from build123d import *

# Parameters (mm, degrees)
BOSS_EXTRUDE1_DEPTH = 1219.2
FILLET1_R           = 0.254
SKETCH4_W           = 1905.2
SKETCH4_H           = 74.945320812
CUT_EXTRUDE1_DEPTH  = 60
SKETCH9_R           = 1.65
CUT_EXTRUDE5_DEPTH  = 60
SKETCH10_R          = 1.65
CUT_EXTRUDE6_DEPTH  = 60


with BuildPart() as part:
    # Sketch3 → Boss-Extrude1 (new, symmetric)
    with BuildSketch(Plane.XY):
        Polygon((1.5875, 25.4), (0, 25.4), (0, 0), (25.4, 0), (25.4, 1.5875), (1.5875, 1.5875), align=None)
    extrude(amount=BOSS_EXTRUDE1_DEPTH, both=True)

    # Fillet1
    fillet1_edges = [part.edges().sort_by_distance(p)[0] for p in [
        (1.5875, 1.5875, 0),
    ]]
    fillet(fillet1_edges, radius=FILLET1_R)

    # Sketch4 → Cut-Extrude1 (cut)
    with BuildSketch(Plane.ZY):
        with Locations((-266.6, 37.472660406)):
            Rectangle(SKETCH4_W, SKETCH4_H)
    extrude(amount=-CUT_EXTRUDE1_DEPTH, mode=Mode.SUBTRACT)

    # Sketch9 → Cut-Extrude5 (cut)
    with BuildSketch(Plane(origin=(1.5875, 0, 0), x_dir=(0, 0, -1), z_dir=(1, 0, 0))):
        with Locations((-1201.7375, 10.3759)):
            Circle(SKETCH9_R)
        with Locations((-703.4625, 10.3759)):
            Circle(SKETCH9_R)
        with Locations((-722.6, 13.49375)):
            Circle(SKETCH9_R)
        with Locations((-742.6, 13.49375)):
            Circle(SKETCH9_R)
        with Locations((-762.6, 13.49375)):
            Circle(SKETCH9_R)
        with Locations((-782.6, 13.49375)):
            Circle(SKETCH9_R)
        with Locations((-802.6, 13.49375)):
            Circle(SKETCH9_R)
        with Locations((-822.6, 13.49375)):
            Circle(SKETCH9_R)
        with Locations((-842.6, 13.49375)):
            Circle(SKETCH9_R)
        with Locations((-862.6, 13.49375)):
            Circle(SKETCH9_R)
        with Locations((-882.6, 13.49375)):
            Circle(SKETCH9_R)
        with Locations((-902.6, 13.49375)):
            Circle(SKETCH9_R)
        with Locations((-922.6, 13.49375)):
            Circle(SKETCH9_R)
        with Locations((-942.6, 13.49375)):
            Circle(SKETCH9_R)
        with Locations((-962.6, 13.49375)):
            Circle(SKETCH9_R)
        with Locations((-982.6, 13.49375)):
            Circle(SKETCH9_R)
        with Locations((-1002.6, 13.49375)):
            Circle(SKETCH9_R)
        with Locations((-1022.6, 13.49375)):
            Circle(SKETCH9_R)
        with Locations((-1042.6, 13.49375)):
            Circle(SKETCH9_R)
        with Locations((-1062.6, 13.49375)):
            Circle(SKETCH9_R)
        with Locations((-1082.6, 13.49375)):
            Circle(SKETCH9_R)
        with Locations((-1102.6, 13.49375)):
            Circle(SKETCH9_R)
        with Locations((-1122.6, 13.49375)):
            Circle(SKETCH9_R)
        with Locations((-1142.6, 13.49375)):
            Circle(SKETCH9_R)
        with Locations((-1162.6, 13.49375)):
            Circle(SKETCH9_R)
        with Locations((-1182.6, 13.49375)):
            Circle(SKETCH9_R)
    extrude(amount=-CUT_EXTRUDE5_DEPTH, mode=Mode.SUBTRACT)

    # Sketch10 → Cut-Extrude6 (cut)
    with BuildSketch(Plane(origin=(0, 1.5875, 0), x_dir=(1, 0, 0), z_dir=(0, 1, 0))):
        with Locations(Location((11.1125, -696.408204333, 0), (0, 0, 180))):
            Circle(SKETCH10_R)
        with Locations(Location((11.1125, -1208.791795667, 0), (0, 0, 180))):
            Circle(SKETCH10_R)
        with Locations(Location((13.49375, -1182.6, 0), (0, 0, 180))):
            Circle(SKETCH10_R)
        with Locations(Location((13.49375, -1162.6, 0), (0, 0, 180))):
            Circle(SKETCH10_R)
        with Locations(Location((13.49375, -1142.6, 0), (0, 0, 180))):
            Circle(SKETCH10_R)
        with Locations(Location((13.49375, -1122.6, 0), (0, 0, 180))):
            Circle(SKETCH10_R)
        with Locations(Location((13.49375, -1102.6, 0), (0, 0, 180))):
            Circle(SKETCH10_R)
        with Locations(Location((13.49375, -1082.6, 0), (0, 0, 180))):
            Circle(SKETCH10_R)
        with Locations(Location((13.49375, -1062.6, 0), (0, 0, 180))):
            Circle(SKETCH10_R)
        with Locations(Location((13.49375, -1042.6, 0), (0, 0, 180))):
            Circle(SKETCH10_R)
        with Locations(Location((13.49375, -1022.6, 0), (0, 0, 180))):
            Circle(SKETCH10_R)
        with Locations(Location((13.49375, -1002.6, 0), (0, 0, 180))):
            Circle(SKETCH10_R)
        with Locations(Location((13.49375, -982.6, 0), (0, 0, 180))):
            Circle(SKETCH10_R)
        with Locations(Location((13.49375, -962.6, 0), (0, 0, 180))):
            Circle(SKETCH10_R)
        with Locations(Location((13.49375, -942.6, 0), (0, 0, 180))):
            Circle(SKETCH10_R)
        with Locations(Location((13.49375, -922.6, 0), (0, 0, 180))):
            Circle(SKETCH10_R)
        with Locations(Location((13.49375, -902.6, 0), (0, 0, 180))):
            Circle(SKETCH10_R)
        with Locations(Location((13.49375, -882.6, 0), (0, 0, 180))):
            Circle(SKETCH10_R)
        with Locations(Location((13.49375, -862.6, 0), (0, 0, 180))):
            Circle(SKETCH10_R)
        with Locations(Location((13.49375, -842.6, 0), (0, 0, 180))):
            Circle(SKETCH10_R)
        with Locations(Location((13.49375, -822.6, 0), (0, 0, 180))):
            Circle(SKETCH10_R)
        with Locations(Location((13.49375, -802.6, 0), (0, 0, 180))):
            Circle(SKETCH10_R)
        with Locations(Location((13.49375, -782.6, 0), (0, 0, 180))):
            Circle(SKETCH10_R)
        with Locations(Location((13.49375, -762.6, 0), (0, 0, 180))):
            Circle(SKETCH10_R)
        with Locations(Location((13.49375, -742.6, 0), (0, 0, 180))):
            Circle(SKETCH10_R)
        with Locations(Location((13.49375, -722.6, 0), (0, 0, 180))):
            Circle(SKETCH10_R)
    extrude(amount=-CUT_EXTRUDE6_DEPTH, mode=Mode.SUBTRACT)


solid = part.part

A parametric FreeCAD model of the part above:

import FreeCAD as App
import Part
import Sketcher
from FreeCAD import Vector
Q = App.Units.Quantity


def edges_at(feature, points):
    """Names of the edges that pass closest to the given points."""
    edges = feature.Shape.Edges
    near = lambda p: min(range(len(edges)), key=lambda i: edges[i].distToShape(Part.Vertex(*p))[0])
    return sorted({f"Edge{near(p) + 1}" for p in points})

doc = App.newDocument("Part")
body = doc.addObject("PartDesign::Body", "Body")

# Sketch on XY plane
sketch1 = doc.addObject("Sketcher::SketchObject", "Sketch")
body.addObject(sketch1)
sketch1.AttachmentSupport = (doc.XY_Plane, [""])
sketch1.MapMode = "FlatFace"
sketch1.addGeometry([
    Part.LineSegment(Vector(1.6, 25.4, 0), Vector(0, 25.4, 0)),  # 0
    Part.LineSegment(Vector(0, 25.4, 0), Vector(0, 0, 0)),  # 1
    Part.LineSegment(Vector(0, 0, 0), Vector(25.4, 0, 0)),  # 2
    Part.LineSegment(Vector(25.4, 0, 0), Vector(25.4, 1.6, 0)),  # 3
    Part.LineSegment(Vector(25.4, 1.6, 0), Vector(1.6, 1.6, 0)),  # 4
    Part.LineSegment(Vector(1.6, 1.6, 0), Vector(1.6, 25.4, 0)),  # 5
], False)
sketch1.addConstraint([
    Sketcher.Constraint("Coincident", 0, 2, 1, 1),
    Sketcher.Constraint("Coincident", 1, 2, 2, 1),
    Sketcher.Constraint("Coincident", 2, 2, 3, 1),
    Sketcher.Constraint("Coincident", 3, 2, 4, 1),
    Sketcher.Constraint("Coincident", 4, 2, 5, 1),
    Sketcher.Constraint("Coincident", 5, 2, 0, 1),
    Sketcher.Constraint("Horizontal", 0),
    Sketcher.Constraint("Vertical", 1),
    Sketcher.Constraint("Horizontal", 2),
    Sketcher.Constraint("Vertical", 3),
    Sketcher.Constraint("Horizontal", 4),
    Sketcher.Constraint("Vertical", 5),
    Sketcher.Constraint("Coincident", 1, 2, -1, 1),
    Sketcher.Constraint("Equal", 2, 1),
    Sketcher.Constraint("Equal", 0, 3),
    Sketcher.Constraint("DistanceX", 2, 1, 2, 2, Q("1 in")),
    Sketcher.Constraint("DistanceX", 0, 2, 0, 1, Q("0.0625 in")),
])
pad1 = doc.addObject("PartDesign::Pad", "Pad")
body.addObject(pad1)
pad1.Profile = sketch1
pad1.Length = Q("96 in")
pad1.Midplane = True
doc.recompute()

fillet = doc.addObject("PartDesign::Fillet", "Fillet")
body.addObject(fillet)
fillet.Base = (pad1, edges_at(pad1, [(1.587, 1.587, 0)]))
fillet.Radius = Q("0.01 in")

# Sketch on YZ plane
sketch2 = doc.addObject("Sketcher::SketchObject", "Sketch001")
body.addObject(sketch2)
sketch2.AttachmentSupport = (doc.YZ_Plane, [""])
sketch2.MapMode = "FlatFace"
sketch2.addGeometry([
    Part.LineSegment(Vector(75, -1219, 0), Vector(0, -1219, 0)),
    Part.LineSegment(Vector(0, -1219, 0), Vector(0, 686, 0)),
    Part.LineSegment(Vector(0, 686, 0), Vector(75, 686, 0)),
    Part.LineSegment(Vector(75, 686, 0), Vector(75, -1219, 0)),
], False)
sketch2.addConstraint([
    Sketcher.Constraint("Coincident", 0, 2, 1, 1),
    Sketcher.Constraint("Coincident", 1, 2, 2, 1),
    Sketcher.Constraint("Coincident", 2, 2, 3, 1),
    Sketcher.Constraint("Coincident", 3, 2, 0, 1),
    Sketcher.Constraint("Horizontal", 0),
    Sketcher.Constraint("Vertical", 1),
    Sketcher.Constraint("Horizontal", 2),
    Sketcher.Constraint("Vertical", 3),
    Sketcher.Constraint("PointOnObject", 0, 2, -2),
    Sketcher.Constraint("DistanceY", 0, 2, -1, 1, Q("48 in")),
    Sketcher.Constraint("DistanceY", 1, 1, 1, 2, Q("1905.2 mm")),
    Sketcher.Constraint("DistanceX", 0, 2, 0, 1, Q("74.945321 mm")),
])
pocket1 = doc.addObject("PartDesign::Pocket", "Pocket")
body.addObject(pocket1)
pocket1.Profile = sketch2
pocket1.Length = 60
pocket1.Reversed = True

# Sketch on YZ plane
sketch3 = doc.addObject("Sketcher::SketchObject", "Sketch002")
body.addObject(sketch3)
sketch3.AttachmentSupport = (doc.YZ_Plane, [""])
sketch3.MapMode = "FlatFace"
sketch3.AttachmentOffset = App.Placement(Vector(0, 0, 0.0625 * 25.4), App.Rotation())
sketch3.addGeometry([
    Part.Circle(Vector(10.4, 1201.7, 0), Vector(0, 0, 1), 1.6),  # 0
    Part.Circle(Vector(10.4, 703.5, 0), Vector(0, 0, 1), 1.6),  # 1
    Part.Circle(Vector(13.5, 722.6, 0), Vector(0, 0, 1), 1.6),  # 2
    Part.Circle(Vector(13.5, 742.6, 0), Vector(0, 0, 1), 1.6),  # 3
    Part.Circle(Vector(13.5, 762.6, 0), Vector(0, 0, 1), 1.6),  # 4
    Part.Circle(Vector(13.5, 782.6, 0), Vector(0, 0, 1), 1.6),  # 5
    Part.Circle(Vector(13.5, 802.6, 0), Vector(0, 0, 1), 1.6),  # 6
    Part.Circle(Vector(13.5, 822.6, 0), Vector(0, 0, 1), 1.6),  # 7
    Part.Circle(Vector(13.5, 842.6, 0), Vector(0, 0, 1), 1.6),  # 8
    Part.Circle(Vector(13.5, 862.6, 0), Vector(0, 0, 1), 1.6),  # 9
    Part.Circle(Vector(13.5, 882.6, 0), Vector(0, 0, 1), 1.6),  # 10
    Part.Circle(Vector(13.5, 902.6, 0), Vector(0, 0, 1), 1.6),  # 11
    Part.Circle(Vector(13.5, 922.6, 0), Vector(0, 0, 1), 1.6),  # 12
    Part.Circle(Vector(13.5, 942.6, 0), Vector(0, 0, 1), 1.6),  # 13
    Part.Circle(Vector(13.5, 962.6, 0), Vector(0, 0, 1), 1.6),  # 14
    Part.Circle(Vector(13.5, 982.6, 0), Vector(0, 0, 1), 1.6),  # 15
    Part.Circle(Vector(13.5, 1002.6, 0), Vector(0, 0, 1), 1.6),  # 16
    Part.Circle(Vector(13.5, 1022.6, 0), Vector(0, 0, 1), 1.6),  # 17
    Part.Circle(Vector(13.5, 1042.6, 0), Vector(0, 0, 1), 1.6),  # 18
    Part.Circle(Vector(13.5, 1062.6, 0), Vector(0, 0, 1), 1.6),  # 19
    Part.Circle(Vector(13.5, 1082.6, 0), Vector(0, 0, 1), 1.6),  # 20
    Part.Circle(Vector(13.5, 1102.6, 0), Vector(0, 0, 1), 1.6),  # 21
    Part.Circle(Vector(13.5, 1122.6, 0), Vector(0, 0, 1), 1.6),  # 22
    Part.Circle(Vector(13.5, 1142.6, 0), Vector(0, 0, 1), 1.6),  # 23
    Part.Circle(Vector(13.5, 1162.6, 0), Vector(0, 0, 1), 1.6),  # 24
    Part.Circle(Vector(13.5, 1182.6, 0), Vector(0, 0, 1), 1.6),  # 25
], False)
sketch3.addConstraint([
    Sketcher.Constraint("Equal", 0, 1),
    Sketcher.Constraint("Equal", 1, 2),
    Sketcher.Constraint("Equal", 2, 3),
    Sketcher.Constraint("Equal", 3, 4),
    Sketcher.Constraint("Equal", 4, 5),
    Sketcher.Constraint("Equal", 5, 6),
    Sketcher.Constraint("Equal", 6, 7),
    Sketcher.Constraint("Equal", 7, 8),
    Sketcher.Constraint("Equal", 8, 9),
    Sketcher.Constraint("Equal", 9, 10),
    Sketcher.Constraint("Equal", 10, 11),
    Sketcher.Constraint("Equal", 11, 12),
    Sketcher.Constraint("Equal", 12, 13),
    Sketcher.Constraint("Equal", 13, 14),
    Sketcher.Constraint("Equal", 14, 15),
    Sketcher.Constraint("Equal", 15, 16),
    Sketcher.Constraint("Equal", 16, 17),
    Sketcher.Constraint("Equal", 17, 18),
    Sketcher.Constraint("Equal", 18, 19),
    Sketcher.Constraint("Equal", 19, 20),
    Sketcher.Constraint("Equal", 20, 21),
    Sketcher.Constraint("Equal", 21, 22),
    Sketcher.Constraint("Equal", 22, 23),
    Sketcher.Constraint("Equal", 23, 24),
    Sketcher.Constraint("Equal", 24, 25),
    Sketcher.Constraint("Vertical", 0, 3, 1, 3),
    Sketcher.Constraint("Vertical", 2, 3, 3, 3),
    Sketcher.Constraint("Vertical", 3, 3, 4, 3),
    Sketcher.Constraint("Vertical", 4, 3, 5, 3),
    Sketcher.Constraint("Vertical", 5, 3, 6, 3),
    Sketcher.Constraint("Vertical", 6, 3, 7, 3),
    Sketcher.Constraint("Vertical", 7, 3, 8, 3),
    Sketcher.Constraint("Vertical", 8, 3, 9, 3),
    Sketcher.Constraint("Vertical", 9, 3, 10, 3),
    Sketcher.Constraint("Vertical", 10, 3, 11, 3),
    Sketcher.Constraint("Vertical", 11, 3, 12, 3),
    Sketcher.Constraint("Vertical", 12, 3, 13, 3),
    Sketcher.Constraint("Vertical", 13, 3, 14, 3),
    Sketcher.Constraint("Vertical", 14, 3, 15, 3),
    Sketcher.Constraint("Vertical", 15, 3, 16, 3),
    Sketcher.Constraint("Vertical", 16, 3, 17, 3),
    Sketcher.Constraint("Vertical", 17, 3, 18, 3),
    Sketcher.Constraint("Vertical", 18, 3, 19, 3),
    Sketcher.Constraint("Vertical", 19, 3, 20, 3),
    Sketcher.Constraint("Vertical", 20, 3, 21, 3),
    Sketcher.Constraint("Vertical", 21, 3, 22, 3),
    Sketcher.Constraint("Vertical", 22, 3, 23, 3),
    Sketcher.Constraint("Vertical", 23, 3, 24, 3),
    Sketcher.Constraint("Vertical", 24, 3, 25, 3),
    Sketcher.Constraint("Diameter", 0, Q("3.3 mm")),
    Sketcher.Constraint("DistanceY", -1, 1, 0, 3, Q("47.3125 in")),
    Sketcher.Constraint("DistanceX", -1, 1, 2, 3, Q("0.53125 in")),
    Sketcher.Constraint("DistanceX", -1, 1, 0, 3, Q("0.4085 in")),
    Sketcher.Constraint("DistanceY", -1, 1, 1, 3, Q("703.4625 mm")),
    Sketcher.Constraint("DistanceY", -1, 1, 2, 3, Q("722.6 mm")),
    Sketcher.Constraint("DistanceY", -1, 1, 3, 3, Q("742.6 mm")),
    Sketcher.Constraint("DistanceY", -1, 1, 4, 3, Q("762.6 mm")),
    Sketcher.Constraint("DistanceY", -1, 1, 5, 3, Q("782.6 mm")),
    Sketcher.Constraint("DistanceY", -1, 1, 6, 3, Q("802.6 mm")),
    Sketcher.Constraint("DistanceY", -1, 1, 7, 3, Q("822.6 mm")),
    Sketcher.Constraint("DistanceY", -1, 1, 8, 3, Q("842.6 mm")),
    Sketcher.Constraint("DistanceY", -1, 1, 9, 3, Q("862.6 mm")),
    Sketcher.Constraint("DistanceY", -1, 1, 10, 3, Q("882.6 mm")),
    Sketcher.Constraint("DistanceY", -1, 1, 11, 3, Q("902.6 mm")),
    Sketcher.Constraint("DistanceY", -1, 1, 12, 3, Q("922.6 mm")),
    Sketcher.Constraint("DistanceY", -1, 1, 13, 3, Q("942.6 mm")),
    Sketcher.Constraint("DistanceY", -1, 1, 14, 3, Q("962.6 mm")),
    Sketcher.Constraint("DistanceY", -1, 1, 15, 3, Q("982.6 mm")),
    Sketcher.Constraint("DistanceY", -1, 1, 16, 3, Q("1002.6 mm")),
    Sketcher.Constraint("DistanceY", -1, 1, 17, 3, Q("1022.6 mm")),
    Sketcher.Constraint("DistanceY", -1, 1, 18, 3, Q("1042.6 mm")),
    Sketcher.Constraint("DistanceY", -1, 1, 19, 3, Q("1062.6 mm")),
    Sketcher.Constraint("DistanceY", -1, 1, 20, 3, Q("1082.6 mm")),
    Sketcher.Constraint("DistanceY", -1, 1, 21, 3, Q("1102.6 mm")),
    Sketcher.Constraint("DistanceY", -1, 1, 22, 3, Q("1122.6 mm")),
    Sketcher.Constraint("DistanceY", -1, 1, 23, 3, Q("1142.6 mm")),
    Sketcher.Constraint("DistanceY", -1, 1, 24, 3, Q("1162.6 mm")),
    Sketcher.Constraint("DistanceY", -1, 1, 25, 3, Q("1182.6 mm")),
])
pocket2 = doc.addObject("PartDesign::Pocket", "Pocket001")
body.addObject(pocket2)
pocket2.Profile = sketch3
pocket2.Length = 60

# Sketch on XZ plane
sketch4 = doc.addObject("Sketcher::SketchObject", "Sketch003")
body.addObject(sketch4)
sketch4.AttachmentSupport = (doc.XZ_Plane, [""])
sketch4.MapMode = "FlatFace"
sketch4.AttachmentOffset = App.Placement(Vector(0, 0, -0.0625 * 25.4), App.Rotation())
sketch4.addGeometry([
    Part.Circle(Vector(11.1, 696.4, 0), Vector(0, 0, 1), 1.6),  # 0
    Part.Circle(Vector(11.1, 1208.8, 0), Vector(0, 0, 1), 1.6),  # 1
    Part.Circle(Vector(13.5, 1182.6, 0), Vector(0, 0, 1), 1.6),  # 2
    Part.Circle(Vector(13.5, 1162.6, 0), Vector(0, 0, 1), 1.6),  # 3
    Part.Circle(Vector(13.5, 1142.6, 0), Vector(0, 0, 1), 1.6),  # 4
    Part.Circle(Vector(13.5, 1122.6, 0), Vector(0, 0, 1), 1.6),  # 5
    Part.Circle(Vector(13.5, 1102.6, 0), Vector(0, 0, 1), 1.6),  # 6
    Part.Circle(Vector(13.5, 1082.6, 0), Vector(0, 0, 1), 1.6),  # 7
    Part.Circle(Vector(13.5, 1062.6, 0), Vector(0, 0, 1), 1.6),  # 8
    Part.Circle(Vector(13.5, 1042.6, 0), Vector(0, 0, 1), 1.6),  # 9
    Part.Circle(Vector(13.5, 1022.6, 0), Vector(0, 0, 1), 1.6),  # 10
    Part.Circle(Vector(13.5, 1002.6, 0), Vector(0, 0, 1), 1.6),  # 11
    Part.Circle(Vector(13.5, 982.6, 0), Vector(0, 0, 1), 1.6),  # 12
    Part.Circle(Vector(13.5, 962.6, 0), Vector(0, 0, 1), 1.6),  # 13
    Part.Circle(Vector(13.5, 942.6, 0), Vector(0, 0, 1), 1.6),  # 14
    Part.Circle(Vector(13.5, 922.6, 0), Vector(0, 0, 1), 1.6),  # 15
    Part.Circle(Vector(13.5, 902.6, 0), Vector(0, 0, 1), 1.6),  # 16
    Part.Circle(Vector(13.5, 882.6, 0), Vector(0, 0, 1), 1.6),  # 17
    Part.Circle(Vector(13.5, 862.6, 0), Vector(0, 0, 1), 1.6),  # 18
    Part.Circle(Vector(13.5, 842.6, 0), Vector(0, 0, 1), 1.6),  # 19
    Part.Circle(Vector(13.5, 822.6, 0), Vector(0, 0, 1), 1.6),  # 20
    Part.Circle(Vector(13.5, 802.6, 0), Vector(0, 0, 1), 1.6),  # 21
    Part.Circle(Vector(13.5, 782.6, 0), Vector(0, 0, 1), 1.6),  # 22
    Part.Circle(Vector(13.5, 762.6, 0), Vector(0, 0, 1), 1.6),  # 23
    Part.Circle(Vector(13.5, 742.6, 0), Vector(0, 0, 1), 1.6),  # 24
    Part.Circle(Vector(13.5, 722.6, 0), Vector(0, 0, 1), 1.6),  # 25
], False)
sketch4.addConstraint([
    Sketcher.Constraint("Equal", 0, 1),
    Sketcher.Constraint("Equal", 1, 2),
    Sketcher.Constraint("Equal", 2, 3),
    Sketcher.Constraint("Equal", 3, 4),
    Sketcher.Constraint("Equal", 4, 5),
    Sketcher.Constraint("Equal", 5, 6),
    Sketcher.Constraint("Equal", 6, 7),
    Sketcher.Constraint("Equal", 7, 8),
    Sketcher.Constraint("Equal", 8, 9),
    Sketcher.Constraint("Equal", 9, 10),
    Sketcher.Constraint("Equal", 10, 11),
    Sketcher.Constraint("Equal", 11, 12),
    Sketcher.Constraint("Equal", 12, 13),
    Sketcher.Constraint("Equal", 13, 14),
    Sketcher.Constraint("Equal", 14, 15),
    Sketcher.Constraint("Equal", 15, 16),
    Sketcher.Constraint("Equal", 16, 17),
    Sketcher.Constraint("Equal", 17, 18),
    Sketcher.Constraint("Equal", 18, 19),
    Sketcher.Constraint("Equal", 19, 20),
    Sketcher.Constraint("Equal", 20, 21),
    Sketcher.Constraint("Equal", 21, 22),
    Sketcher.Constraint("Equal", 22, 23),
    Sketcher.Constraint("Equal", 23, 24),
    Sketcher.Constraint("Equal", 24, 25),
    Sketcher.Constraint("Vertical", 0, 3, 1, 3),
    Sketcher.Constraint("Vertical", 2, 3, 3, 3),
    Sketcher.Constraint("Vertical", 3, 3, 4, 3),
    Sketcher.Constraint("Vertical", 4, 3, 5, 3),
    Sketcher.Constraint("Vertical", 5, 3, 6, 3),
    Sketcher.Constraint("Vertical", 6, 3, 7, 3),
    Sketcher.Constraint("Vertical", 7, 3, 8, 3),
    Sketcher.Constraint("Vertical", 8, 3, 9, 3),
    Sketcher.Constraint("Vertical", 9, 3, 10, 3),
    Sketcher.Constraint("Vertical", 10, 3, 11, 3),
    Sketcher.Constraint("Vertical", 11, 3, 12, 3),
    Sketcher.Constraint("Vertical", 12, 3, 13, 3),
    Sketcher.Constraint("Vertical", 13, 3, 14, 3),
    Sketcher.Constraint("Vertical", 14, 3, 15, 3),
    Sketcher.Constraint("Vertical", 15, 3, 16, 3),
    Sketcher.Constraint("Vertical", 16, 3, 17, 3),
    Sketcher.Constraint("Vertical", 17, 3, 18, 3),
    Sketcher.Constraint("Vertical", 18, 3, 19, 3),
    Sketcher.Constraint("Vertical", 19, 3, 20, 3),
    Sketcher.Constraint("Vertical", 20, 3, 21, 3),
    Sketcher.Constraint("Vertical", 21, 3, 22, 3),
    Sketcher.Constraint("Vertical", 22, 3, 23, 3),
    Sketcher.Constraint("Vertical", 23, 3, 24, 3),
    Sketcher.Constraint("Vertical", 24, 3, 25, 3),
    Sketcher.Constraint("Diameter", 0, Q("3.3 mm")),
    Sketcher.Constraint("DistanceX", -1, 1, 0, 3, Q("0.4375 in")),
    Sketcher.Constraint("DistanceX", -1, 1, 2, 3, Q("0.53125 in")),
    Sketcher.Constraint("DistanceY", -1, 1, 2, 3, Q("1182.6 mm")),
    Sketcher.Constraint("DistanceY", -1, 1, 3, 3, Q("1162.6 mm")),
    Sketcher.Constraint("DistanceY", -1, 1, 4, 3, Q("1142.6 mm")),
    Sketcher.Constraint("DistanceY", -1, 1, 5, 3, Q("1122.6 mm")),
    Sketcher.Constraint("DistanceY", -1, 1, 6, 3, Q("1102.6 mm")),
    Sketcher.Constraint("DistanceY", -1, 1, 7, 3, Q("1082.6 mm")),
    Sketcher.Constraint("DistanceY", -1, 1, 8, 3, Q("1062.6 mm")),
    Sketcher.Constraint("DistanceY", -1, 1, 9, 3, Q("1042.6 mm")),
    Sketcher.Constraint("DistanceY", -1, 1, 10, 3, Q("1022.6 mm")),
    Sketcher.Constraint("DistanceY", -1, 1, 11, 3, Q("1002.6 mm")),
    Sketcher.Constraint("DistanceY", -1, 1, 12, 3, Q("982.6 mm")),
    Sketcher.Constraint("DistanceY", -1, 1, 13, 3, Q("962.6 mm")),
    Sketcher.Constraint("DistanceY", -1, 1, 14, 3, Q("942.6 mm")),
    Sketcher.Constraint("DistanceY", -1, 1, 15, 3, Q("922.6 mm")),
    Sketcher.Constraint("DistanceY", -1, 1, 16, 3, Q("902.6 mm")),
    Sketcher.Constraint("DistanceY", -1, 1, 17, 3, Q("882.6 mm")),
    Sketcher.Constraint("DistanceY", -1, 1, 18, 3, Q("862.6 mm")),
    Sketcher.Constraint("DistanceY", -1, 1, 19, 3, Q("842.6 mm")),
    Sketcher.Constraint("DistanceY", -1, 1, 20, 3, Q("822.6 mm")),
    Sketcher.Constraint("DistanceY", -1, 1, 21, 3, Q("802.6 mm")),
    Sketcher.Constraint("DistanceY", -1, 1, 22, 3, Q("782.6 mm")),
    Sketcher.Constraint("DistanceY", -1, 1, 23, 3, Q("762.6 mm")),
    Sketcher.Constraint("DistanceY", -1, 1, 24, 3, Q("742.6 mm")),
    Sketcher.Constraint("DistanceY", -1, 1, 25, 3, Q("722.6 mm")),
    Sketcher.Constraint("DistanceY", 0, 3, 1, 3, Q("512.383591 mm")),
    Sketcher.Constraint("DistanceY", -1, 1, 0, 3, Q("696.408204 mm")),
])
pocket3 = doc.addObject("PartDesign::Pocket", "Pocket002")
body.addObject(pocket3)
pocket3.Profile = sketch4
pocket3.Length = 60
pocket3.Reversed = True

doc.recompute()
